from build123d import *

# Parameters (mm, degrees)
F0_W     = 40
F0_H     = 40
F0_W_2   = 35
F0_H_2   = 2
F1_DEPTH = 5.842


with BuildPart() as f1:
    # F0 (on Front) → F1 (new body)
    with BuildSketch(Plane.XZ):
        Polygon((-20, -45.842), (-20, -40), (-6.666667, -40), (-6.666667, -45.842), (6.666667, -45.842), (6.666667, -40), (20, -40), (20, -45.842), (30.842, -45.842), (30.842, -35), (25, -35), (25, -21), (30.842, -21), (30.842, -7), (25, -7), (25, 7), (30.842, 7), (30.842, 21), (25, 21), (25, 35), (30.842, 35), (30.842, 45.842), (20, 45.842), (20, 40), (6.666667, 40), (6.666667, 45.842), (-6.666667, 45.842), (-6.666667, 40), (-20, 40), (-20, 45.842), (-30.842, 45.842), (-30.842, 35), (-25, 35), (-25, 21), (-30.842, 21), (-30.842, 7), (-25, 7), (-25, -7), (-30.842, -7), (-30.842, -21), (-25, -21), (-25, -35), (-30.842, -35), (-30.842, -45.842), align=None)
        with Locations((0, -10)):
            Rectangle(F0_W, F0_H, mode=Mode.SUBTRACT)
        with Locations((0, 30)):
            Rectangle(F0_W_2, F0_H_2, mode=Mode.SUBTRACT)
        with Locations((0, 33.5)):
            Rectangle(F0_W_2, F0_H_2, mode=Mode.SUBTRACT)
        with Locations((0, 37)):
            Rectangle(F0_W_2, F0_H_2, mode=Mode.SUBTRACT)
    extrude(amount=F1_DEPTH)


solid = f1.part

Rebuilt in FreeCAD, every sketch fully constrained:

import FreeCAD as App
import Part
import Sketcher


def add_polygon(sketch, points):
    """Adds a closed chain of lines whose ends are joined by coincident constraints."""
    first, n = sketch.GeometryCount, len(points)
    for a, b in zip(points, points[1:] + points[:1]):
        sketch.addGeometry(Part.LineSegment(App.Vector(*a, 0), App.Vector(*b, 0)), False)
    for i in range(n):
        sketch.addConstraint(Sketcher.Constraint("Coincident", first + i, 2, first + (i + 1) % n, 1))

doc = App.newDocument("Part")
body = doc.addObject("PartDesign::Body", "Body")

# Sketch on XZ plane
sketch1 = body.newObject("Sketcher::SketchObject", "Sketch")
sketch1.AttachmentSupport = (doc.getObject("XZ_Plane"), [""])
sketch1.MapMode = "FlatFace"
add_polygon(sketch1, [(-20, -45.8), (-20, -40), (-6.7, -40), (-6.7, -45.8), (6.7, -45.8), (6.7, -40), (20, -40), (20, -45.8), (30.8, -45.8), (30.8, -35), (25, -35), (25, -21), (30.8, -21), (30.8, -7), (25, -7), (25, 7), (30.8, 7), (30.8, 21), (25, 21), (25, 35), (30.8, 35), (30.8, 45.8), (20, 45.8), (20, 40), (6.7, 40), (6.7, 45.8), (-6.7, 45.8), (-6.7, 40), (-20, 40), (-20, 45.8), (-30.8, 45.8), (-30.8, 35), (-25, 35), (-25, 21), (-30.8, 21), (-30.8, 7), (-25, 7), (-25, -7), (-30.8, -7), (-30.8, -21), (-25, -21), (-25, -35), (-30.8, -35), (-30.8, -45.8)])  # lines 0-43
add_polygon(sketch1, [(20, -30), (-20, -30), (-20, 10), (20, 10)])  # lines 44-47
add_polygon(sketch1, [(17.5, 29), (-17.5, 29), (-17.5, 31), (17.5, 31)])  # lines 48-51
add_polygon(sketch1, [(17.5, 32.5), (-17.5, 32.5), (-17.5, 34.5), (17.5, 34.5)])  # lines 52-55
add_polygon(sketch1, [(17.5, 36), (-17.5, 36), (-17.5, 38), (17.5, 38)])  # lines 56-59
sketch1.addConstraint([
    Sketcher.Constraint("Vertical", 0),
    Sketcher.Constraint("Horizontal", 1),
    Sketcher.Constraint("Vertical", 2),
    Sketcher.Constraint("Horizontal", 3),
    Sketcher.Constraint("Vertical", 4),
    Sketcher.Constraint("Horizontal", 5),
    Sketcher.Constraint("Vertical", 6),
    Sketcher.Constraint("Horizontal", 7),
    Sketcher.Constraint("Vertical", 8),
    Sketcher.Constraint("Horizontal", 9),
    Sketcher.Constraint("Vertical", 10),
    Sketcher.Constraint("Horizontal", 11),
    Sketcher.Constraint("Vertical", 12),
    Sketcher.Constraint("Horizontal", 13),
    Sketcher.Constraint("Vertical", 14),
    Sketcher.Constraint("Horizontal", 15),
    Sketcher.Constraint("Vertical", 16),
    Sketcher.Constraint("Horizontal", 17),
    Sketcher.Constraint("Vertical", 18),
    Sketcher.Constraint("Horizontal", 19),
    Sketcher.Constraint("Vertical", 20),
    Sketcher.Constraint("Horizontal", 21),
    Sketcher.Constraint("Vertical", 22),
    Sketcher.Constraint("Horizontal", 23),
    Sketcher.Constraint("Vertical", 24),
    Sketcher.Constraint("Horizontal", 25),
    Sketcher.Constraint("Vertical", 26),
    Sketcher.Constraint("Horizontal", 27),
    Sketcher.Constraint("Vertical", 28),
    Sketcher.Constraint("Horizontal", 29),
    Sketcher.Constraint("Vertical", 30),
    Sketcher.Constraint("Horizontal", 31),
    Sketcher.Constraint("Vertical", 32),
    Sketcher.Constraint("Horizontal", 33),
    Sketcher.Constraint("Vertical", 34),
    Sketcher.Constraint("Horizontal", 35),
    Sketcher.Constraint("Vertical", 36),
    Sketcher.Constraint("Horizontal", 37),
    Sketcher.Constraint("Vertical", 38),
    Sketcher.Constraint("Horizontal", 39),
    Sketcher.Constraint("Vertical", 40),
    Sketcher.Constraint("Horizontal", 41),
    Sketcher.Constraint("Vertical", 42),
    Sketcher.Constraint("Horizontal", 43),
    Sketcher.Constraint("Horizontal", 44),
    Sketcher.Constraint("Vertical", 45),
    Sketcher.Constraint("Horizontal", 46),
    Sketcher.Constraint("Vertical", 47),
    Sketcher.Constraint("Horizontal", 48),
    Sketcher.Constraint("Vertical", 49),
    Sketcher.Constraint("Horizontal", 50),
    Sketcher.Constraint("Vertical", 51),
    Sketcher.Constraint("Horizontal", 52),
    Sketcher.Constraint("Vertical", 53),
    Sketcher.Constraint("Horizontal", 54),
    Sketcher.Constraint("Vertical", 55),
    Sketcher.Constraint("Horizontal", 56),
    Sketcher.Constraint("Vertical", 57),
    Sketcher.Constraint("Horizontal", 58),
    Sketcher.Constraint("Vertical", 59),
    Sketcher.Constraint("Symmetric", 0, 2, 22, 2, -1, 1),
    Sketcher.Constraint("Symmetric", 2, 2, 24, 2, -1, 1),
    Sketcher.Constraint("Symmetric", 4, 2, 26, 2, -1, 1),
    Sketcher.Constraint("Symmetric", 6, 2, 28, 2, -1, 1),
    Sketcher.Constraint("Symmetric", 8, 2, 30, 2, -1, 1),
    Sketcher.Constraint("Symmetric", 10, 2, 32, 2, -1, 1),
    Sketcher.Constraint("Symmetric", 12, 2, 34, 2, -1, 1),
    Sketcher.Constraint("Symmetric", 14, 2, 36, 2, -1, 1),
    Sketcher.Constraint("Symmetric", 16, 2, 38, 2, -1, 1),
    Sketcher.Constraint("Symmetric", 18, 2, 40, 2, -1, 1),
    Sketcher.Constraint("Symmetric", 20, 2, 42, 2, -1, 1),
    Sketcher.Constraint("Symmetric", 1, 2, 4, 2, -2),
    Sketcher.Constraint("Symmetric", 21, 2, 28, 2, -2),
    Sketcher.Constraint("Symmetric", 19, 2, 30, 2, -2),
    Sketcher.Constraint("Symmetric", 17, 2, 32, 2, -2),
    Sketcher.Constraint("Symmetric", 15, 2, 34, 2, -2),
    Sketcher.Constraint("Horizontal", 3, 2, 6, 2),
    Sketcher.Constraint("Vertical", 8, 2, 11, 2),
    Sketcher.Constraint("Vertical", 10, 2, 13, 2),
    Sketcher.Constraint("Vertical", 43, 2, 44, 2),
    Sketcher.Constraint("Vertical", 22, 2, 46, 2),
    Sketcher.Constraint("Vertical", 49, 2, 52, 2),
    Sketcher.Constraint("Vertical", 51, 2, 54, 2),
    Sketcher.Constraint("Vertical", 53, 2, 56, 2),
    Sketcher.Constraint("Vertical", 55, 2, 58, 2),
    Sketcher.Constraint("Equal", 1, 3),
    Sketcher.Constraint("Equal", 41, 0),
    Sketcher.Constraint("Equal", 43, 8),
    Sketcher.Constraint("Equal", 10, 12),
    Sketcher.Constraint("Equal", 12, 14),
    Sketcher.Constraint("Equal", 46, 45),
    Sketcher.Constraint("Equal", 51, 53),
    Sketcher.Constraint("Equal", 55, 57),
    Sketcher.Constraint("DistanceX", 44, 2, 44, 1, 40.0),
    Sketcher.Constraint("DistanceX", 48, 2, 48, 1, 35.0),
    Sketcher.Constraint("DistanceY", 10, 1, 10, 2, 14.0),
    Sketcher.Constraint("DistanceY", 49, 1, 49, 2, 2.0),
    Sketcher.Constraint("DistanceY", 0, 2, -1, 1, 40.0),
    Sketcher.Constraint("DistanceY", 44, 2, -1, 1, 30.0),
    Sketcher.Constraint("DistanceY", -1, 1, 48, 2, 29.0),
    Sketcher.Constraint("DistanceY", -1, 1, 56, 2, 36.0),
    Sketcher.Constraint("DistanceX", 48, 2, -1, 1, 17.5),
    Sketcher.Constraint("DistanceY", -1, 1, 52, 2, 32.5),
    Sketcher.Constraint("DistanceX", 7, 1, 7, 2, 10.842),
])
pad1 = body.newObject("PartDesign::Pad", "Pad")
pad1.Profile = sketch1
pad1.Length = 5.842

doc.recompute()
